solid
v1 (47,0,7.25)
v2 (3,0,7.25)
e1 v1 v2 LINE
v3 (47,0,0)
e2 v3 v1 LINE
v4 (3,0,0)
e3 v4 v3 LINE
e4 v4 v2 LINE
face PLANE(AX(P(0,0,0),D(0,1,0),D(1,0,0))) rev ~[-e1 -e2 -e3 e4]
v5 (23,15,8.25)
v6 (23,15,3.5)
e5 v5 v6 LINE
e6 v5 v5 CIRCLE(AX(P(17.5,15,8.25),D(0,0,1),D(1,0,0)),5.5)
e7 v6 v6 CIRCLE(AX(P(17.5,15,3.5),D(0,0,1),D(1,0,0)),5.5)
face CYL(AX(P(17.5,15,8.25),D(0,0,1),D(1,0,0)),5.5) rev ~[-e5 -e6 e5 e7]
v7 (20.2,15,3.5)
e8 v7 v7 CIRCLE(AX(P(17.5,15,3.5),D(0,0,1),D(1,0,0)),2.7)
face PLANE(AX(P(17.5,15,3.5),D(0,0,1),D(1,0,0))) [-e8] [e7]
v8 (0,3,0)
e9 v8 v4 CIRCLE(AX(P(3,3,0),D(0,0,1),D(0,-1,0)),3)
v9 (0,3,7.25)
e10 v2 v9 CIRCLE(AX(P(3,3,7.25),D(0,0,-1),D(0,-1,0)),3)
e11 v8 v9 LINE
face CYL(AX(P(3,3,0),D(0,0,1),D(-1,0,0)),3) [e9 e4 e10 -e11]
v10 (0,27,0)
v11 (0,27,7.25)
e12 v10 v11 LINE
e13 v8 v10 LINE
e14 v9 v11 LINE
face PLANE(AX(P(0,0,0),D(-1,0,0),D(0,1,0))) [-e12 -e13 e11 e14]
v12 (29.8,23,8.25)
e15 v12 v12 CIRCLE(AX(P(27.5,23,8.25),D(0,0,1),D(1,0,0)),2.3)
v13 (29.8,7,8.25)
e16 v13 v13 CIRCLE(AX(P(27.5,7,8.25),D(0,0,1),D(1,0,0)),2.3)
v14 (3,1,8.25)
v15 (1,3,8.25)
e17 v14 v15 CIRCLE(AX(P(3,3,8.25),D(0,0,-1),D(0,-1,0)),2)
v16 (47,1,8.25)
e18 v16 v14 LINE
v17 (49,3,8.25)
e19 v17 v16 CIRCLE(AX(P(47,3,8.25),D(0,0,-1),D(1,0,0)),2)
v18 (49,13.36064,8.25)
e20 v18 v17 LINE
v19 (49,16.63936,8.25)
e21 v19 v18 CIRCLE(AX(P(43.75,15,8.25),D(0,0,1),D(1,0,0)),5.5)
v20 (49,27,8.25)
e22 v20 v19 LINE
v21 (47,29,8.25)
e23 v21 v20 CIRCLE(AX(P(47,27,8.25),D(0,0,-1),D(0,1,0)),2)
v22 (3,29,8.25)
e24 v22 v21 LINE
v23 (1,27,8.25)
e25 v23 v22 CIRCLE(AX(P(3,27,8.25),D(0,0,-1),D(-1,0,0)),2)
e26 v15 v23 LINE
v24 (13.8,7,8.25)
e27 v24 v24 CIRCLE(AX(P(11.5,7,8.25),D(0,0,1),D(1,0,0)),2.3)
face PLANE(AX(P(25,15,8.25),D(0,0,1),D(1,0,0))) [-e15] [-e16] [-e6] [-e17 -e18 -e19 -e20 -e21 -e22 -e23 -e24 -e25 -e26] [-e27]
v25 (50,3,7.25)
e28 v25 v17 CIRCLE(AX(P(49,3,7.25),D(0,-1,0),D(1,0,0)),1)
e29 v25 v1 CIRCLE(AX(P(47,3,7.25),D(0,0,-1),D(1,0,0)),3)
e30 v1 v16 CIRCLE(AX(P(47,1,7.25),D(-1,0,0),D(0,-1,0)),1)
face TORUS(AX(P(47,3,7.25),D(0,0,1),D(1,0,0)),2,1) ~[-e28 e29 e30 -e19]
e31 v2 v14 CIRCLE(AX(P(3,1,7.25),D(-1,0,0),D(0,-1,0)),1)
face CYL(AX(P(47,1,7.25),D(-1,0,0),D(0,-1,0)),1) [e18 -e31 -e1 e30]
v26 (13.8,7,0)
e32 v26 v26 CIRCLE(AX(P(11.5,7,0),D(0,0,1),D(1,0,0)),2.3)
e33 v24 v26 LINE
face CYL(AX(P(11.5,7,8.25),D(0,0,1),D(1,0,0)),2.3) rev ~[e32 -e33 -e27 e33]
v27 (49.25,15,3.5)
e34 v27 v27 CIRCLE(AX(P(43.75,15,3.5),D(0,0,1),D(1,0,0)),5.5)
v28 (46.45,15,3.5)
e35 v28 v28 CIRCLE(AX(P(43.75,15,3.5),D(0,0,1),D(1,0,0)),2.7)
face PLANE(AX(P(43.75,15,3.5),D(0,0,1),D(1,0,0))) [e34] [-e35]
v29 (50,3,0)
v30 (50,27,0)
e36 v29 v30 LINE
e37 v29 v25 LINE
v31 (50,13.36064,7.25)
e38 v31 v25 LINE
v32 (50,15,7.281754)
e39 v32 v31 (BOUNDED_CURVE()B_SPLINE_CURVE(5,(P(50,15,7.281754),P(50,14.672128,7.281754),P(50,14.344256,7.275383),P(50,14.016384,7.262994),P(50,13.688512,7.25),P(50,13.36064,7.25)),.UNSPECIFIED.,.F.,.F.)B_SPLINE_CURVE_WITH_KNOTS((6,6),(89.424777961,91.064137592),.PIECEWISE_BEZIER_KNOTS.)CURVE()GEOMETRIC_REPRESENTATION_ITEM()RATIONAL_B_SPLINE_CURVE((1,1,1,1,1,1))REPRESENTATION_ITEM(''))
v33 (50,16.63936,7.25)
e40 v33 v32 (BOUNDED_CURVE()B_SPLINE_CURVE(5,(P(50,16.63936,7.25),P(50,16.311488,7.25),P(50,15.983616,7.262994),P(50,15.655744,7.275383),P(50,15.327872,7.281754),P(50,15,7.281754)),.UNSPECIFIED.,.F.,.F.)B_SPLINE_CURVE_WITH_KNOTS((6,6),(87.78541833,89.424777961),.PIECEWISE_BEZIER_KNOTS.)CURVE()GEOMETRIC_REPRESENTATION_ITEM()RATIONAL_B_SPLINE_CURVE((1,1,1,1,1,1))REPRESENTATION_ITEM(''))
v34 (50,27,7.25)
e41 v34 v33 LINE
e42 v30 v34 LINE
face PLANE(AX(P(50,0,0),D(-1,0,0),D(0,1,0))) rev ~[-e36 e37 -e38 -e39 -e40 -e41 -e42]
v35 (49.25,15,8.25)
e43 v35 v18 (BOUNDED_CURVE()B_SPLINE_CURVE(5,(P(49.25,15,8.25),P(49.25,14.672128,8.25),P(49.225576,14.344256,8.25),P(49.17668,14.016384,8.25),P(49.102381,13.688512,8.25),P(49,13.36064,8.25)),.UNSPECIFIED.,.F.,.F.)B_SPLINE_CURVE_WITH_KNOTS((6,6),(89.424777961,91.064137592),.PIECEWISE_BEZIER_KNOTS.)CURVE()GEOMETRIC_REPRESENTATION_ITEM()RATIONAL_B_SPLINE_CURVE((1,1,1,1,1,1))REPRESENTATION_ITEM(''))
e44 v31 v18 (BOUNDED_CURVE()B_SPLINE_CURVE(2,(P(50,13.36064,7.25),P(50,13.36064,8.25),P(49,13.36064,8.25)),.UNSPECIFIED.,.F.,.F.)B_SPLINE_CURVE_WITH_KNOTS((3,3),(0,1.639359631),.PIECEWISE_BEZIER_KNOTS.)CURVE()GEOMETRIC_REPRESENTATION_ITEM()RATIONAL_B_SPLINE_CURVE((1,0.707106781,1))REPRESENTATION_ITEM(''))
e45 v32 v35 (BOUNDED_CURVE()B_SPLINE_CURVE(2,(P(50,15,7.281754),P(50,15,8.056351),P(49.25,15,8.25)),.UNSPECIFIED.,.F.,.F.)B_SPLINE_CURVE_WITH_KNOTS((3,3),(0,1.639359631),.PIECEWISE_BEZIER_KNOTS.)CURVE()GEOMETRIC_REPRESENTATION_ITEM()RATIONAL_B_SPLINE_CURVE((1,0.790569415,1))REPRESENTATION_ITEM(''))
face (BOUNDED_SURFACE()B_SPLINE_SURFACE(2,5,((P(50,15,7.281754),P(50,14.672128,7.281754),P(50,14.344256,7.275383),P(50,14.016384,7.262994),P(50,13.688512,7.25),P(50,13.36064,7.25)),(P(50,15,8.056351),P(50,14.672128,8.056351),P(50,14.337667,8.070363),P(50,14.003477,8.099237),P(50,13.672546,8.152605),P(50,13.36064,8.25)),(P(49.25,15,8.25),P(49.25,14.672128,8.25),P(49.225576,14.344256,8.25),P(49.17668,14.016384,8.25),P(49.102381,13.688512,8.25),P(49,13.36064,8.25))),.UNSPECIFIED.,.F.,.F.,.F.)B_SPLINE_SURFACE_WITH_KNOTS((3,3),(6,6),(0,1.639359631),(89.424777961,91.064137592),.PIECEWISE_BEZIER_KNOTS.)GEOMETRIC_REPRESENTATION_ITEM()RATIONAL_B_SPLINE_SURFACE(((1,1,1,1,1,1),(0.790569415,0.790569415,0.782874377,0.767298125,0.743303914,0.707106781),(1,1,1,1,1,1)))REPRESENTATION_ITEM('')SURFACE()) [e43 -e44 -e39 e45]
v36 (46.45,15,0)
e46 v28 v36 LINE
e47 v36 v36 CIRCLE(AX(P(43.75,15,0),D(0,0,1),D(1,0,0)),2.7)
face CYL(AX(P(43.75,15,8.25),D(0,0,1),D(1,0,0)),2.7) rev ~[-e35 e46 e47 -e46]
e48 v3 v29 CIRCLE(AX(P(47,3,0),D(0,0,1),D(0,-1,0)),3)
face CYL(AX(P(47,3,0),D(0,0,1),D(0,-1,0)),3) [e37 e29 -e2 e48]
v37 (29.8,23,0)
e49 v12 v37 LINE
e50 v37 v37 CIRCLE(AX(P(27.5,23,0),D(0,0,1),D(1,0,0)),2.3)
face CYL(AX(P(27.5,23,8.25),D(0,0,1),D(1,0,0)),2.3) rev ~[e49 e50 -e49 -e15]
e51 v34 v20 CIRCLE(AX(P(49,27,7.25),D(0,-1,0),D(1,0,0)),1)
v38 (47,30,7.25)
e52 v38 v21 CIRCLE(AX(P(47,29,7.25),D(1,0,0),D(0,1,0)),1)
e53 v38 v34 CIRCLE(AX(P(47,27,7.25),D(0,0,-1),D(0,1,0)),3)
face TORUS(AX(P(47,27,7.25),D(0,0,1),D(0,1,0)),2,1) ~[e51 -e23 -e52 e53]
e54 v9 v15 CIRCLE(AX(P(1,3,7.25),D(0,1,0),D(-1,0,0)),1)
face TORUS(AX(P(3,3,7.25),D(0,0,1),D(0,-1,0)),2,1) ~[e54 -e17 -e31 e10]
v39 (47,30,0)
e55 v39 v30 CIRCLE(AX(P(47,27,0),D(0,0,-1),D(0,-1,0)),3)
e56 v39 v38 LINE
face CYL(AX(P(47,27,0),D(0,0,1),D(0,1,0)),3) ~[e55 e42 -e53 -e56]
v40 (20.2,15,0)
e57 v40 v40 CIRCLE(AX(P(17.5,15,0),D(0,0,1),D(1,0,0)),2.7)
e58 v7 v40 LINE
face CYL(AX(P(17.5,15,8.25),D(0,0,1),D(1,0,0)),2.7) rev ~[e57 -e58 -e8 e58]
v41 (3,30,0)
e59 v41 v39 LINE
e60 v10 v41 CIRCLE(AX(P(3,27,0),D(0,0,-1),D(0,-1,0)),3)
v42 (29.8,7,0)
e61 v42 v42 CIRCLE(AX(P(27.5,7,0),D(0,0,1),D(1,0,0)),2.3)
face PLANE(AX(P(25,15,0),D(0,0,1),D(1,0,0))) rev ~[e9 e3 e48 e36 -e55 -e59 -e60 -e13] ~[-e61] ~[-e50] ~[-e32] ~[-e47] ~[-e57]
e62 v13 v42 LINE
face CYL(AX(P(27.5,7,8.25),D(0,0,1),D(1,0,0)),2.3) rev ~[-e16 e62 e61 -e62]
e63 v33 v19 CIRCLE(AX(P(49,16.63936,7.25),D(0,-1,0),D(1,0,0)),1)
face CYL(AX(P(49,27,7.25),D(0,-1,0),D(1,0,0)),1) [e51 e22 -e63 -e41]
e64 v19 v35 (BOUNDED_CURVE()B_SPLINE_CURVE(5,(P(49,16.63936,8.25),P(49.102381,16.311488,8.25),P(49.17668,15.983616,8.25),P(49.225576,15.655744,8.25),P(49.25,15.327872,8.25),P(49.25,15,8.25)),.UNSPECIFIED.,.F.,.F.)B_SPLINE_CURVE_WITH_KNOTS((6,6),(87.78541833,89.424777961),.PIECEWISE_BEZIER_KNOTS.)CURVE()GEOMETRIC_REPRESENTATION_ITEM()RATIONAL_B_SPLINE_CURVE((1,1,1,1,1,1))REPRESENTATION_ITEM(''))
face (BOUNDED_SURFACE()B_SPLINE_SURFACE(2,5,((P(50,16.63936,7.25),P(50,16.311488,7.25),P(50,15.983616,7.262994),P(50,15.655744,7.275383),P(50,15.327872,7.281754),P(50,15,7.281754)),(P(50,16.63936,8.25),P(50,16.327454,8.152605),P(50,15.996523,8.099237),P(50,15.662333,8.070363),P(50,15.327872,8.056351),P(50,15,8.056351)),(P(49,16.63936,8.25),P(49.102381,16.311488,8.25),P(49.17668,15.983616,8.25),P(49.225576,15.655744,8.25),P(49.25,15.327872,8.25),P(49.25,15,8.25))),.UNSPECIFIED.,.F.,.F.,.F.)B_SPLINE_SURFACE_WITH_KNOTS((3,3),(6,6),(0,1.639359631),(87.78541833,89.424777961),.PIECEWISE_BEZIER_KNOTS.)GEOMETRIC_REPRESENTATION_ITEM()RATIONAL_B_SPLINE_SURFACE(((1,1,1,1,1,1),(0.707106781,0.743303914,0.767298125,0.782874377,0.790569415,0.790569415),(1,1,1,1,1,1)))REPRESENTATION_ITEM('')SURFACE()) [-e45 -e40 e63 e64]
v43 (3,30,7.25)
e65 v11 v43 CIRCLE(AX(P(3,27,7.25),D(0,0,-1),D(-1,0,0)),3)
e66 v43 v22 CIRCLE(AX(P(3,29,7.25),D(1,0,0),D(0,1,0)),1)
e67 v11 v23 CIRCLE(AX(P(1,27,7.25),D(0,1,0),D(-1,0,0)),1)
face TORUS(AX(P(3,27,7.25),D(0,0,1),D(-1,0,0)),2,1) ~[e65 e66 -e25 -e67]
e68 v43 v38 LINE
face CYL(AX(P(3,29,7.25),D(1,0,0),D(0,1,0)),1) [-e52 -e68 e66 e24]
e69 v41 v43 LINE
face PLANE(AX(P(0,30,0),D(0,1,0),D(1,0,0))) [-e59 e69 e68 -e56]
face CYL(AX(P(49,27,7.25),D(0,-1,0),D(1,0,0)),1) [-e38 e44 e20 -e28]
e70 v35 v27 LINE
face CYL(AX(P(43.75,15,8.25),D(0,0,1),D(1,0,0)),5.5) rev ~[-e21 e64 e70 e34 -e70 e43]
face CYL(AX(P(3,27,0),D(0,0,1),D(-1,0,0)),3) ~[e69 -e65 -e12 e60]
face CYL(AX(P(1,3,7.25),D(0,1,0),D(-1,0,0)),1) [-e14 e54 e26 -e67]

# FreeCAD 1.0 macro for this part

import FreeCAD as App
import Part
import Sketcher


def edges_at(feature, points):
    """Names of the edges that pass closest to the given points."""
    edges = feature.Shape.Edges
    near = lambda p: min(range(len(edges)), key=lambda i: edges[i].distToShape(Part.Vertex(*p))[0])
    return sorted({f"Edge{near(p) + 1}" for p in points})

doc = App.newDocument("Part")
body = doc.addObject("PartDesign::Body", "Body")

# Sketch on XY plane
sketch1 = doc.addObject("Sketcher::SketchObject", "Sketch")
body.addObject(sketch1)
sketch1.AttachmentSupport = (doc.XY_Plane, [""])
sketch1.MapMode = "FlatFace"
sketch1.addGeometry(Part.LineSegment(App.Vector(0, 30, 0), App.Vector(0, 0, 0)), False)
sketch1.addGeometry(Part.LineSegment(App.Vector(0, 0, 0), App.Vector(50, 0, 0)), False)
sketch1.addGeometry(Part.LineSegment(App.Vector(50, 0, 0), App.Vector(50, 30, 0)), False)
sketch1.addGeometry(Part.LineSegment(App.Vector(50, 30, 0), App.Vector(0, 30, 0)), False)
sketch1.addConstraint(Sketcher.Constraint("Coincident", 0, 2, 1, 1))
sketch1.addConstraint(Sketcher.Constraint("Coincident", 1, 2, 2, 1))
sketch1.addConstraint(Sketcher.Constraint("Coincident", 2, 2, 3, 1))
sketch1.addConstraint(Sketcher.Constraint("Coincident", 3, 2, 0, 1))
sketch1.addConstraint(Sketcher.Constraint("Vertical", 0))
sketch1.addConstraint(Sketcher.Constraint("Horizontal", 1))
sketch1.addConstraint(Sketcher.Constraint("Vertical", 2))
sketch1.addConstraint(Sketcher.Constraint("Horizontal", 3))
sketch1.addConstraint(Sketcher.Constraint("Coincident", 0, 2, -1, 1))
sketch1.addConstraint(Sketcher.Constraint("DistanceX", 1, 1, 1, 2, 50.0))
sketch1.addConstraint(Sketcher.Constraint("DistanceY", 0, 2, 0, 1, 30.0))
pad1 = doc.addObject("PartDesign::Pad", "Pad")
body.addObject(pad1)
pad1.Profile = sketch1
pad1.Length = 8.25

# Sketch on XY plane
sketch2 = doc.addObject("Sketcher::SketchObject", "Sketch001")
body.addObject(sketch2)
sketch2.AttachmentSupport = (doc.XY_Plane, [""])
sketch2.MapMode = "FlatFace"
sketch2.AttachmentOffset = App.Placement(App.Vector(0, 0, 8.25), App.Rotation())
sketch2.addGeometry(Part.Circle(App.Vector(27.5, 23, 0), App.Vector(0, 0, 1), 2.3), False)
sketch2.addGeometry(Part.Circle(App.Vector(27.5, 7, 0), App.Vector(0, 0, 1), 2.3), False)
sketch2.addGeometry(Part.Circle(App.Vector(11.5, 7, 0), App.Vector(0, 0, 1), 2.3), False)
sketch2.addConstraint(Sketcher.Constraint("Equal", 0, 1))
sketch2.addConstraint(Sketcher.Constraint("Equal", 1, 2))
sketch2.addConstraint(Sketcher.Constraint("Horizontal", 1, 3, 2, 3))
sketch2.addConstraint(Sketcher.Constraint("Vertical", 0, 3, 1, 3))
sketch2.addConstraint(Sketcher.Constraint("Diameter", 0, 4.6))
sketch2.addConstraint(Sketcher.Constraint("DistanceY", -1, 1, 0, 3, 23.0))
sketch2.addConstraint(Sketcher.Constraint("DistanceY", -1, 1, 1, 3, 7.0))
sketch2.addConstraint(Sketcher.Constraint("DistanceX", 2, 3, 1, 3, 16.0))
sketch2.addConstraint(Sketcher.Constraint("DistanceX", -1, 1, 0, 3, 27.5))
pocket1 = doc.addObject("PartDesign::Pocket", "Pocket")
body.addObject(pocket1)
pocket1.Profile = sketch2
pocket1.Type = "ThroughAll"

# Sketch on XY plane
sketch3 = doc.addObject("Sketcher::SketchObject", "Sketch002")
body.addObject(sketch3)
sketch3.AttachmentSupport = (doc.XY_Plane, [""])
sketch3.MapMode = "FlatFace"
sketch3.AttachmentOffset = App.Placement(App.Vector(0, 0, 8.25), App.Rotation())
sketch3.addGeometry(Part.Circle(App.Vector(17.5, 15, 0), App.Vector(0, 0, 1), 2.7), False)
sketch3.addGeometry(Part.Circle(App.Vector(43.8, 15, 0), App.Vector(0, 0, 1), 2.7), False)
sketch3.addConstraint(Sketcher.Constraint("Equal", 0, 1))
sketch3.addConstraint(Sketcher.Constraint("Horizontal", 0, 3, 1, 3))
sketch3.addConstraint(Sketcher.Constraint("Diameter", 0, 5.4))
sketch3.addConstraint(Sketcher.Constraint("DistanceY", -1, 1, 0, 3, 15.0))
sketch3.addConstraint(Sketcher.Constraint("DistanceX", -1, 1, 0, 3, 17.5))
sketch3.addConstraint(Sketcher.Constraint("DistanceX", -1, 1, 1, 3, 43.75))
pocket2 = doc.addObject("PartDesign::Pocket", "Pocket001")
body.addObject(pocket2)
pocket2.Profile = sketch3
pocket2.Type = "ThroughAll"

# Sketch on XY plane
sketch4 = doc.addObject("Sketcher::SketchObject", "Sketch003")
body.addObject(sketch4)
sketch4.AttachmentSupport = (doc.XY_Plane, [""])
sketch4.MapMode = "FlatFace"
sketch4.AttachmentOffset = App.Placement(App.Vector(0, 0, 8.25), App.Rotation())
sketch4.addGeometry(Part.Circle(App.Vector(44, 15, 0), App.Vector(0, 0, 1), 6), False)
sketch4.addGeometry(Part.Circle(App.Vector(18, 15, 0), App.Vector(0, 0, 1), 6), False)
sketch4.addConstraint(Sketcher.Constraint("Equal", 0, 1))
sketch4.addConstraint(Sketcher.Constraint("Horizontal", 0, 3, 1, 3))
sketch4.addConstraint(Sketcher.Constraint("Diameter", 0, 11.0))
sketch4.addConstraint(Sketcher.Constraint("DistanceY", -1, 1, 0, 3, 15.0))
sketch4.addConstraint(Sketcher.Constraint("DistanceX", -1, 1, 1, 3, 17.5))
sketch4.addConstraint(Sketcher.Constraint("DistanceX", -1, 1, 0, 3, 43.75))
pocket3 = doc.addObject("PartDesign::Pocket", "Pocket002")
body.addObject(pocket3)
pocket3.Profile = sketch4
pocket3.Length = 4.75
doc.recompute()

fillet = doc.addObject("PartDesign::Fillet", "Fillet")
body.addObject(fillet)
fillet.Base = (pocket3, edges_at(pocket3, [
    (50, 0, 4.125),
    (50, 30, 4.125),
    (0, 30, 4.125),
    (0, 0, 4.125),
]))
fillet.Radius = 3
doc.recompute()

fillet2 = doc.addObject("PartDesign::Fillet", "Fillet001")
body.addObject(fillet2)
fillet2.Base = (fillet, edges_at(fillet, [
    (0, 15, 8.25),
    (0.879, 29.121, 8.25),
    (25, 30, 8.25),
    (49.121, 29.121, 8.25),
    (50, 15, 8.25),
    (49.121, 0.879, 8.25),
    (25, 0, 8.25),
    (0.879, 0.879, 8.25),
]))
fillet2.Radius = 1

doc.recompute()
